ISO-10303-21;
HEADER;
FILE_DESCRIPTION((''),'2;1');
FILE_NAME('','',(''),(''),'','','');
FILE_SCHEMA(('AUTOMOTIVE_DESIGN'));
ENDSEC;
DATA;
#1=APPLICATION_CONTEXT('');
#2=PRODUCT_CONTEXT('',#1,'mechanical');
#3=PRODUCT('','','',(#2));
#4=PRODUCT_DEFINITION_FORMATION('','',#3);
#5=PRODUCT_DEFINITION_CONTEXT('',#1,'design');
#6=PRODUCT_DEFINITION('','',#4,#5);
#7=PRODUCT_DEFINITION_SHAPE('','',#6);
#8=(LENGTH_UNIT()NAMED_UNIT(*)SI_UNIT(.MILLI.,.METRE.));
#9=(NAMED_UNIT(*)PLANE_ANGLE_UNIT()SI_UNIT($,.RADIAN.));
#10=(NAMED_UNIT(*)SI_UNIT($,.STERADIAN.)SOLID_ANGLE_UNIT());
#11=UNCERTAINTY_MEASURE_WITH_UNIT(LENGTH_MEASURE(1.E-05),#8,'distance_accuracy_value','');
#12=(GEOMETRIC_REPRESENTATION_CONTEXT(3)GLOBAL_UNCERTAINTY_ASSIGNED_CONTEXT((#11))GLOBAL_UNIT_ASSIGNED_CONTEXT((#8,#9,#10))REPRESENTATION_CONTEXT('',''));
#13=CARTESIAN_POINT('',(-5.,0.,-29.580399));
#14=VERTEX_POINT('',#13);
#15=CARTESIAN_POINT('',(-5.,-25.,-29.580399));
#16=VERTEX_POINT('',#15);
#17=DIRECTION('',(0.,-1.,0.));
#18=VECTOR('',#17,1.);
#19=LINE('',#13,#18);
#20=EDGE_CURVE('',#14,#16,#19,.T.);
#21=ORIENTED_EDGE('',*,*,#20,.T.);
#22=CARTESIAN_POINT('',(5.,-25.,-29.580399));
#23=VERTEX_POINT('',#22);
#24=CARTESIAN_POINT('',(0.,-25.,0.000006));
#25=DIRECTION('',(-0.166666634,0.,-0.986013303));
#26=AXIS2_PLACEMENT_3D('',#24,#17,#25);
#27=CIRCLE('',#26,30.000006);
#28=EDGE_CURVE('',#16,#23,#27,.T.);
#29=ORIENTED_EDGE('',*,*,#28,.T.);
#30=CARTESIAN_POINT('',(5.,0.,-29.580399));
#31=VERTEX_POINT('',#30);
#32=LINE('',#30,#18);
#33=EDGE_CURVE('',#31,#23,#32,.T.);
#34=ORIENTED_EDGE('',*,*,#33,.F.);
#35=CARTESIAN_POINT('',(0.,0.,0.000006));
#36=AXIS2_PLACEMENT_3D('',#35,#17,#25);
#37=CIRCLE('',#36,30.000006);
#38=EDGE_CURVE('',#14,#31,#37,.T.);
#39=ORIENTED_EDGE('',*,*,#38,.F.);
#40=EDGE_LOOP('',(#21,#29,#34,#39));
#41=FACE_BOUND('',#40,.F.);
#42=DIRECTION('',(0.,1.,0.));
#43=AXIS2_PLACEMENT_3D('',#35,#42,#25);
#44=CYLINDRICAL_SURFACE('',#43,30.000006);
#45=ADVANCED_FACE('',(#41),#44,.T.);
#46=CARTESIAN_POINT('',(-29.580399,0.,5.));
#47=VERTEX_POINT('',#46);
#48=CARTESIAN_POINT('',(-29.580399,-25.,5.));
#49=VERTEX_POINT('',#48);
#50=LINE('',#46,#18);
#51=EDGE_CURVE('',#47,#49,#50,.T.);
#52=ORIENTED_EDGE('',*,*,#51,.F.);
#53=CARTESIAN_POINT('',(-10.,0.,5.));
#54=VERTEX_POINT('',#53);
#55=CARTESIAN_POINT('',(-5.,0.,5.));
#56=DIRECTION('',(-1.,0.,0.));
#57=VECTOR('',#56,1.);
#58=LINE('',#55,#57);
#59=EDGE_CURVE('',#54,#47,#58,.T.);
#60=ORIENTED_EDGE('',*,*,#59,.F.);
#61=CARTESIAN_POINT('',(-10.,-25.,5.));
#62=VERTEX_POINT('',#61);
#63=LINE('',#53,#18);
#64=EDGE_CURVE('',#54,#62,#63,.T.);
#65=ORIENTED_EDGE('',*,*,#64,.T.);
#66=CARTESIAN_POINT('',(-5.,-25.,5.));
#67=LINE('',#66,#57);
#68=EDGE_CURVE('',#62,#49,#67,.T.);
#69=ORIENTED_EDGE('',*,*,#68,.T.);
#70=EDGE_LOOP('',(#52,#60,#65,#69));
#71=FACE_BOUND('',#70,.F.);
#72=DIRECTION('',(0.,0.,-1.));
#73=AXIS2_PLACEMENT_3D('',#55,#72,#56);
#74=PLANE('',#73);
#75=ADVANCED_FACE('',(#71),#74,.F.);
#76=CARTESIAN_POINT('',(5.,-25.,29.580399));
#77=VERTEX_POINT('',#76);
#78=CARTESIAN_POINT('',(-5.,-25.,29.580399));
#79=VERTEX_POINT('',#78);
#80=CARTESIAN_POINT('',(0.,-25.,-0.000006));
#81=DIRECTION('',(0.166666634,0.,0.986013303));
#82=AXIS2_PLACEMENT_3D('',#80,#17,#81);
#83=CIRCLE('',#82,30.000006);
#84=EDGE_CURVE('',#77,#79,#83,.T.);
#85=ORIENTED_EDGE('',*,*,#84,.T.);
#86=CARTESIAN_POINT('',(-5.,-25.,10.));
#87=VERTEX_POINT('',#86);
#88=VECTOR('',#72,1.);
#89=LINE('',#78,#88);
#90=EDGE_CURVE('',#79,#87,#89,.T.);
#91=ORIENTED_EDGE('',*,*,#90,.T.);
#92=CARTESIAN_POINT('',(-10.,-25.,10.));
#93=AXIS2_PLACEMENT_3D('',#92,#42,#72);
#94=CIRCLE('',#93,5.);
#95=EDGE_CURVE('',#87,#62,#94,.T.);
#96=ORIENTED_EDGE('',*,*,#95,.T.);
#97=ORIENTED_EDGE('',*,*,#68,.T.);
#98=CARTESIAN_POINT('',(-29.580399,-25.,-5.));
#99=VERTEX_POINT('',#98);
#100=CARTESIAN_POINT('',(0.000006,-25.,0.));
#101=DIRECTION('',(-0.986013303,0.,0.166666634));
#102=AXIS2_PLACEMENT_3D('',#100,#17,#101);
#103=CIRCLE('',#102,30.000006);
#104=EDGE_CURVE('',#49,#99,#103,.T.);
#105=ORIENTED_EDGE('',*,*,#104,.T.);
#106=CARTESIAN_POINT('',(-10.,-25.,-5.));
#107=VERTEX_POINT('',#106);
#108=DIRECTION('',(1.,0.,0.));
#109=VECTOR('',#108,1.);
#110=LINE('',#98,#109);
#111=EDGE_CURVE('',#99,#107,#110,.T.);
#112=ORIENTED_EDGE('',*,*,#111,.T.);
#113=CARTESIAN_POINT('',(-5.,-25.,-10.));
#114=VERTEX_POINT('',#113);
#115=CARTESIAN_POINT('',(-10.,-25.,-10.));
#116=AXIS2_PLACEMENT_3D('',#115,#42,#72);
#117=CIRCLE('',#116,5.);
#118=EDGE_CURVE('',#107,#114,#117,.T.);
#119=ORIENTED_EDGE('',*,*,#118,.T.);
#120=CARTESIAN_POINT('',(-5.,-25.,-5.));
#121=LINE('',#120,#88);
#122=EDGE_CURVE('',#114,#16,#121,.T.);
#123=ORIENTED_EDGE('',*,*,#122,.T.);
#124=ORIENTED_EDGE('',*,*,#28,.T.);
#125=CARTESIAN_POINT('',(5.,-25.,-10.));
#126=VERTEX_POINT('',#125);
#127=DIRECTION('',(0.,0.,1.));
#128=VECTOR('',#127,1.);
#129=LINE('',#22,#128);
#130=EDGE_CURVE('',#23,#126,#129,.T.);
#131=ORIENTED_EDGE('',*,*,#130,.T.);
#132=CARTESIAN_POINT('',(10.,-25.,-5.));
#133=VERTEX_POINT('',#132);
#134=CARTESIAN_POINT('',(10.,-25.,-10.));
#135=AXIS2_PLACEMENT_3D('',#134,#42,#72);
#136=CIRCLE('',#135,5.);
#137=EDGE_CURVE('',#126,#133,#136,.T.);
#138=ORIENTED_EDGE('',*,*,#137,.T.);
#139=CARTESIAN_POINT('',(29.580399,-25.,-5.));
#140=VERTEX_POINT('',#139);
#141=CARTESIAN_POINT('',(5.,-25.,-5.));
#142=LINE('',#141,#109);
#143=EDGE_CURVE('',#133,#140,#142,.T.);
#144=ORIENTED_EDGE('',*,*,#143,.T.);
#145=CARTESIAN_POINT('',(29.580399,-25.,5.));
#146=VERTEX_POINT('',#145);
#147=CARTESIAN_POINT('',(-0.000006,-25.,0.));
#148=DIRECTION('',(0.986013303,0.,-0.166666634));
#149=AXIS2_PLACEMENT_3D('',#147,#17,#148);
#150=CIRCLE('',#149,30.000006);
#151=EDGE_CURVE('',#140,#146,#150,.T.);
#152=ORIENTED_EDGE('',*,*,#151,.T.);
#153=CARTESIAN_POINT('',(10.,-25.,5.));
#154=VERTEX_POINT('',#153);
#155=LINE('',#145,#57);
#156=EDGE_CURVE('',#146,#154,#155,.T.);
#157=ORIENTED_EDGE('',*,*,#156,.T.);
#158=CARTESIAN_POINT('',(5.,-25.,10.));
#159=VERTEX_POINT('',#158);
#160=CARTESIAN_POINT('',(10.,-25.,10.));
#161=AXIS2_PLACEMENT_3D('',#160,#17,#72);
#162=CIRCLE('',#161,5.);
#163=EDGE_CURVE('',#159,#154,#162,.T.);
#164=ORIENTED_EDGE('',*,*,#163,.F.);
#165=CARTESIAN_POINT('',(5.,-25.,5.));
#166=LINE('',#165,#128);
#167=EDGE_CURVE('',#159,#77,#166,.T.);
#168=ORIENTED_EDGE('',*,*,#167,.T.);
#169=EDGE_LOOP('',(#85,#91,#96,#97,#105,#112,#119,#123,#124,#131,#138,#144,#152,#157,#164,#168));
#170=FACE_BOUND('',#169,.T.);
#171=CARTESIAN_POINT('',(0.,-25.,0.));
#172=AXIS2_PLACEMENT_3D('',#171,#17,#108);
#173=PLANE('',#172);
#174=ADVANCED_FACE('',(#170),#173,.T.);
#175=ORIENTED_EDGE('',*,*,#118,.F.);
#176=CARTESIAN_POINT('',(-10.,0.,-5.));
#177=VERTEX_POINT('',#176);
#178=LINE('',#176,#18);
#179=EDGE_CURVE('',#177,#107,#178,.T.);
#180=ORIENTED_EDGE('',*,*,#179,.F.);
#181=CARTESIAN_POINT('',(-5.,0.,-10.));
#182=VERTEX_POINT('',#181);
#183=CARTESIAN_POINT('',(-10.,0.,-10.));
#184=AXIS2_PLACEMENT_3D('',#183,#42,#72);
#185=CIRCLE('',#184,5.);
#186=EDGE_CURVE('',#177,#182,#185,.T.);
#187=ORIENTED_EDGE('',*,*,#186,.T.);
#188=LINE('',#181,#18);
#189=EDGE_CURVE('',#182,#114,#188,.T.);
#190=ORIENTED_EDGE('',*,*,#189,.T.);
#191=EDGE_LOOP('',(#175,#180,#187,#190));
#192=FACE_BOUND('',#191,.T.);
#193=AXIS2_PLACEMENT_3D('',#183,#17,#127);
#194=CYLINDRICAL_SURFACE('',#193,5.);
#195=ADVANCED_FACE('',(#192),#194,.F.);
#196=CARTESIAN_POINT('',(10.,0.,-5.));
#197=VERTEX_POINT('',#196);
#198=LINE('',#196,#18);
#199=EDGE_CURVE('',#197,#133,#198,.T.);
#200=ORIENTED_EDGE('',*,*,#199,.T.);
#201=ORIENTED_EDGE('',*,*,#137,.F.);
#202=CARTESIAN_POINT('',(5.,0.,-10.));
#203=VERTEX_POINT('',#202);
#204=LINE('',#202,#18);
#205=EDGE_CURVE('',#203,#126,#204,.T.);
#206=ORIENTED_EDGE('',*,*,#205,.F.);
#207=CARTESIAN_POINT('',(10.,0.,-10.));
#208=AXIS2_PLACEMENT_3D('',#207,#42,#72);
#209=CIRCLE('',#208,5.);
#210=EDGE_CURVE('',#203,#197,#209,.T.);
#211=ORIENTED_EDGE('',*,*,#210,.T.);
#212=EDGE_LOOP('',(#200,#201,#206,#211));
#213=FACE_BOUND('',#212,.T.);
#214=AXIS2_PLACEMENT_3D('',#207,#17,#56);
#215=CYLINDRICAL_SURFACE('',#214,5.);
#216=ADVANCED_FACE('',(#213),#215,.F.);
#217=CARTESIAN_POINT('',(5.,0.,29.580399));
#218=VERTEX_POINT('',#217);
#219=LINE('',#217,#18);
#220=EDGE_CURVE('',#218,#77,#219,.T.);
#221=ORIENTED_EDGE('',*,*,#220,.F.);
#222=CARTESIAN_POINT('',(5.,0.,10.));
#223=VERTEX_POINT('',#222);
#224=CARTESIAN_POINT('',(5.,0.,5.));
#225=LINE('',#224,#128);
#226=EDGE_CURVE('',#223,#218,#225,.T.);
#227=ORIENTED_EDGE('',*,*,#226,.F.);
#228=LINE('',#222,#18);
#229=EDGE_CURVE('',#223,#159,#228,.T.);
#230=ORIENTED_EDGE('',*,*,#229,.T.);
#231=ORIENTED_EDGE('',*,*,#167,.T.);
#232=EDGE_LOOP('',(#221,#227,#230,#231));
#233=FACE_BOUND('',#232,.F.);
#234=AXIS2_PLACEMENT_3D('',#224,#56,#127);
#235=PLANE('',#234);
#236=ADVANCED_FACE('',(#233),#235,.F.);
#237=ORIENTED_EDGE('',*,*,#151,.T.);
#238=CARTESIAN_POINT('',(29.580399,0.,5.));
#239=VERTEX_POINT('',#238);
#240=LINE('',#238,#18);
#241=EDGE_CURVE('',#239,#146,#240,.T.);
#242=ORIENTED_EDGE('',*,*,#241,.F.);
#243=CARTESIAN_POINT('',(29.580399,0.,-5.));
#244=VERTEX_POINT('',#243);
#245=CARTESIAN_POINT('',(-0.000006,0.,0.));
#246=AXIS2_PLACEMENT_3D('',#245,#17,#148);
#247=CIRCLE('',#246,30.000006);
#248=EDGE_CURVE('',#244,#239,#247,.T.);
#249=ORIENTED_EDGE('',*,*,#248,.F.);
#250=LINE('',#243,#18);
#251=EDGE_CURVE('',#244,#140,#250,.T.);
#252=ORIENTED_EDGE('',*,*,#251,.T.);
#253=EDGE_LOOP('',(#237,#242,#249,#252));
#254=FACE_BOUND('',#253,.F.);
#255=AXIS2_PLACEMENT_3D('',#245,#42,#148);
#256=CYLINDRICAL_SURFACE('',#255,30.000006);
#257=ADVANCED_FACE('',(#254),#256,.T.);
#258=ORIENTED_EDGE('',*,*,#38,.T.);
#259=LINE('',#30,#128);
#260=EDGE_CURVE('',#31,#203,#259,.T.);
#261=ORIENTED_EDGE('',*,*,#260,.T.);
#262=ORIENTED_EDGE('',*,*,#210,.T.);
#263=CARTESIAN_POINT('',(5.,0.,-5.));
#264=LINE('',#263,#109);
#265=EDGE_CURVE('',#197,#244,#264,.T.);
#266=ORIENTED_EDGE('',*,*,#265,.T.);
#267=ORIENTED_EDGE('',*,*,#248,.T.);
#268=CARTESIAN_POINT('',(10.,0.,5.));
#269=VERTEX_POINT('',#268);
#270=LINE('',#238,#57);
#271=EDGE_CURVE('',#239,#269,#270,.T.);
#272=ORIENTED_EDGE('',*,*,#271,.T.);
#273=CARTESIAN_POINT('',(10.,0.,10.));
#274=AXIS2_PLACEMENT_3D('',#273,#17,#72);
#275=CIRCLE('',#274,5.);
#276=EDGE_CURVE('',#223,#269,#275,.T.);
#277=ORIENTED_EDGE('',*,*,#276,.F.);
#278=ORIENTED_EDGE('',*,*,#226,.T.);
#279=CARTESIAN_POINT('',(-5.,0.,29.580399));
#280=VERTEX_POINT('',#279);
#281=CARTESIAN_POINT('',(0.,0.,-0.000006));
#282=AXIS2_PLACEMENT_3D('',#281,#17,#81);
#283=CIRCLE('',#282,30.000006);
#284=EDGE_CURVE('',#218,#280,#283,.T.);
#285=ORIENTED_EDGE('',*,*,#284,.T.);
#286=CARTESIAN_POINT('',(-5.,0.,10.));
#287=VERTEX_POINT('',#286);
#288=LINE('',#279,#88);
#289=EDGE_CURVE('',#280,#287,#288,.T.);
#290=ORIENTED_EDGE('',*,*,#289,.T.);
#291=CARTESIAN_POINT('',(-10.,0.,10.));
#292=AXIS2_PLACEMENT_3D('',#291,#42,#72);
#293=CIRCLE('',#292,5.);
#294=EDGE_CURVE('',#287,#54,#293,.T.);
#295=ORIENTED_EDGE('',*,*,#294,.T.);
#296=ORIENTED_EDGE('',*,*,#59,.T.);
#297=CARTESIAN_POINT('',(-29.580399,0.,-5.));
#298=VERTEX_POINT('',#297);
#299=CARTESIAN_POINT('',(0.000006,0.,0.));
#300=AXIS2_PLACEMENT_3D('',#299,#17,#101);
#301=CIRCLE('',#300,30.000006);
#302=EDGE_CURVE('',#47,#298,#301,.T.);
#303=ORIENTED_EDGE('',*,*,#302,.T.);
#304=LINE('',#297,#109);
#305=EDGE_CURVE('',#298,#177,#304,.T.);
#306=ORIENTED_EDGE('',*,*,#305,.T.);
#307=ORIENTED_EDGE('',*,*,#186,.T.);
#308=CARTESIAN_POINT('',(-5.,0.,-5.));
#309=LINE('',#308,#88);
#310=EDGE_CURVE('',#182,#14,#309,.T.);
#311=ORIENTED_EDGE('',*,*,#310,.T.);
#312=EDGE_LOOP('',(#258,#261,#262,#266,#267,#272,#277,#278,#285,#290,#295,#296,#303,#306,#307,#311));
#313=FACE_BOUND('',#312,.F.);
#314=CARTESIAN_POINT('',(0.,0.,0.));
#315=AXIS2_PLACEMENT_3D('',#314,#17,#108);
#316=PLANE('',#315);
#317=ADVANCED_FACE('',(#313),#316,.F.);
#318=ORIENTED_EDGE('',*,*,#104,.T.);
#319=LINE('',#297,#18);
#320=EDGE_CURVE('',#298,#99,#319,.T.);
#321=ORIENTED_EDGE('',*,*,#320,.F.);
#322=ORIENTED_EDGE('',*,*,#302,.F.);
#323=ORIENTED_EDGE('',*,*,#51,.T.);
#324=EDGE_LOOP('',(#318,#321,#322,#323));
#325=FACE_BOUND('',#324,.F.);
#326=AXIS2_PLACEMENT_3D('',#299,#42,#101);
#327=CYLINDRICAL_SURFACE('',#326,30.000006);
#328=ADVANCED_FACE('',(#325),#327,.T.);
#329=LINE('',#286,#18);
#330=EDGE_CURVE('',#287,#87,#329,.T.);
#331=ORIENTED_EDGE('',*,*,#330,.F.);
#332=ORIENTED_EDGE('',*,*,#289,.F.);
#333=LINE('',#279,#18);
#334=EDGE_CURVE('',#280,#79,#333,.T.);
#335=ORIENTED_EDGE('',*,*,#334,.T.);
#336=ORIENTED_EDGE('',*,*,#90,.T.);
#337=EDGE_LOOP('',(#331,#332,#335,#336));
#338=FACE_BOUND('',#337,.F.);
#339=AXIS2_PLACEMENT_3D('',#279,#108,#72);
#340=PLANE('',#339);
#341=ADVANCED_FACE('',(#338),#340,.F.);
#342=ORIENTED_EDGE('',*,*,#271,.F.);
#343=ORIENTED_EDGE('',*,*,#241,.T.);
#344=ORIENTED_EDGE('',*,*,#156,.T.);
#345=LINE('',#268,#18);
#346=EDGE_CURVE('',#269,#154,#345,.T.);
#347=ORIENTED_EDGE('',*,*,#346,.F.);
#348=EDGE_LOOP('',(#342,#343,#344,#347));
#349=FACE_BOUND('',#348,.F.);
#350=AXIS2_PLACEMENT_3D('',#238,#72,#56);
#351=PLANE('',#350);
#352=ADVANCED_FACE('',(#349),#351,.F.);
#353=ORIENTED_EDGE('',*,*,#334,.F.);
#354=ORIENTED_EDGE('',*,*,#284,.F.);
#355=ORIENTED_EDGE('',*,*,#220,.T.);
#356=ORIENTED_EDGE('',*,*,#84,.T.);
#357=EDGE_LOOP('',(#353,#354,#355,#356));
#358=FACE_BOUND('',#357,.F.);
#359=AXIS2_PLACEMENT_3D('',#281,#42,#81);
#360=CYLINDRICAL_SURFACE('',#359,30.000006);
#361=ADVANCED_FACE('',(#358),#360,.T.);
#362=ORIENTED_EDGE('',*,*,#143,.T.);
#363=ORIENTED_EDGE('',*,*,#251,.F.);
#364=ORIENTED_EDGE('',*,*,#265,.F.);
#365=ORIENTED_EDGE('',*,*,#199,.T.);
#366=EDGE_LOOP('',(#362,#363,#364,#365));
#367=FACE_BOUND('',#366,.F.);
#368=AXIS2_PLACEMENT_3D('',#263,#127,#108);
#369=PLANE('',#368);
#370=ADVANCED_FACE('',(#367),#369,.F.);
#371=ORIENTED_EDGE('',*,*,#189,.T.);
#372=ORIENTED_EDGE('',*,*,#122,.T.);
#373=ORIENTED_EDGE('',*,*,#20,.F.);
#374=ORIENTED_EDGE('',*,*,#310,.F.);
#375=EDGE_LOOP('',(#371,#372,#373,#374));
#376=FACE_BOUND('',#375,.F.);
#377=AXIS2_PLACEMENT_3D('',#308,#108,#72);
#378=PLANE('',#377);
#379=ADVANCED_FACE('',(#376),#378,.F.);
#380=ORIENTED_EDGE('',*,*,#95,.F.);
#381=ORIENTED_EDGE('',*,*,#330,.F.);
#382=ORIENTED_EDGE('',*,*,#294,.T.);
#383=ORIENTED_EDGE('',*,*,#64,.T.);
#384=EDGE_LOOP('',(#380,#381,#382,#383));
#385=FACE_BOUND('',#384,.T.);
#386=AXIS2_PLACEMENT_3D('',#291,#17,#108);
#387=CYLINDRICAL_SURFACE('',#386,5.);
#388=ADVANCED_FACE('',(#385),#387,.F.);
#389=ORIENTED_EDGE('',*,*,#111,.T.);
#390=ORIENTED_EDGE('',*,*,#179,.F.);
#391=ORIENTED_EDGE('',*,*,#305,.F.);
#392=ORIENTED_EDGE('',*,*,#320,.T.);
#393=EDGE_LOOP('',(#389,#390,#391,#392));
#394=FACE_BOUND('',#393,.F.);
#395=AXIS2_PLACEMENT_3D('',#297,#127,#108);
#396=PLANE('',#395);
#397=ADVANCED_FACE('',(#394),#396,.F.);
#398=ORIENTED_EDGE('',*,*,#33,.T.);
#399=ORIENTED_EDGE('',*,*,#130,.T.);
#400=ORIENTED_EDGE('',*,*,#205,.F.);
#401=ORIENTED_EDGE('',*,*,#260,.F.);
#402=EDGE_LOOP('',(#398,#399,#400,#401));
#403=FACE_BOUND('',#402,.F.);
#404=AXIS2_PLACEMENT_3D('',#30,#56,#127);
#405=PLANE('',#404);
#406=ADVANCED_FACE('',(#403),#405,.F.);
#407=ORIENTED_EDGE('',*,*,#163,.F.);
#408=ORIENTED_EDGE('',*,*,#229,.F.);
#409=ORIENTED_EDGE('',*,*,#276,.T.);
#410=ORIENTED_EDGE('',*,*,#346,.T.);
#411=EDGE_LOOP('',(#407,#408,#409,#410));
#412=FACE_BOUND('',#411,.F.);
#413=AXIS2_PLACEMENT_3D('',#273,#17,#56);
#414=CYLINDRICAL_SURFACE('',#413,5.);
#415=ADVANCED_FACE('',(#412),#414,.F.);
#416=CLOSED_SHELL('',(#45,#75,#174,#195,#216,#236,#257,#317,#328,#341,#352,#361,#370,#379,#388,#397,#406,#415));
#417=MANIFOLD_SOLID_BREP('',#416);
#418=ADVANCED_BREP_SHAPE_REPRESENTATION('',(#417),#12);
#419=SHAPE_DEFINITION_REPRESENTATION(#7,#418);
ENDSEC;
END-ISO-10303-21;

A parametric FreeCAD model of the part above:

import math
import FreeCAD as App
import Part
import Sketcher

V = App.Vector


def edges_at(feature, points):
    """Names of the edges that pass closest to the given points."""
    edges = feature.Shape.Edges
    near = lambda p: min(range(len(edges)), key=lambda i: edges[i].distToShape(Part.Vertex(*p))[0])
    return sorted({f"Edge{near(p) + 1}" for p in points})

doc = App.newDocument("Part")
params = doc.addObject("Spreadsheet::Sheet", "Params")
for row, (alias, value) in enumerate([
    ("pad1_length", "25 mm"),
    ("fillet_radius", "5 mm"),
], start=1):
    params.set(f"A{row}", alias)
    params.set(f"B{row}", "=" + value)
    params.setAlias(f"B{row}", alias)

body = doc.addObject("PartDesign::Body", "Body")

# Sketch on XZ plane
sketch1 = body.newObject("Sketcher::SketchObject", "Sketch")
sketch1.AttachmentSupport = (doc.getObject("XZ_Plane"), [""])
sketch1.MapMode = "FlatFace"
sketch1.addGeometry(Part.LineSegment(V(5, 5, 0), V(5, 29.580399, 0)), False)
sketch1.addGeometry(Part.ArcOfCircle(Part.Circle(V(0, -0.000006, 0), V(0, 0, 1), 30.000006), math.radians(80.405934), math.radians(99.594066)), False)
sketch1.addGeometry(Part.LineSegment(V(-5, 29.580399, 0), V(-5, 5, 0)), False)
sketch1.addGeometry(Part.LineSegment(V(-5, 5, 0), V(-29.580399, 5, 0)), False)
sketch1.addGeometry(Part.ArcOfCircle(Part.Circle(V(0.000006, 0, 0), V(0, 0, 1), 30.000006), math.radians(170.405934), math.radians(189.594066)), False)
sketch1.addGeometry(Part.LineSegment(V(-29.580399, -5, 0), V(-5, -5, 0)), False)
sketch1.addGeometry(Part.LineSegment(V(-5, -5, 0), V(-5, -29.580399, 0)), False)
sketch1.addGeometry(Part.ArcOfCircle(Part.Circle(V(0, 0.000006, 0), V(0, 0, 1), 30.000006), math.radians(-99.594066), math.radians(-80.405934)), False)
sketch1.addGeometry(Part.LineSegment(V(5, -29.580399, 0), V(5, -5, 0)), False)
sketch1.addGeometry(Part.LineSegment(V(5, -5, 0), V(29.580399, -5, 0)), False)
sketch1.addGeometry(Part.ArcOfCircle(Part.Circle(V(-0.000006, 0, 0), V(0, 0, 1), 30.000006), math.radians(-9.594066), math.radians(9.594066)), False)
sketch1.addGeometry(Part.LineSegment(V(29.580399, 5, 0), V(5, 5, 0)), False)
sketch1.addConstraint(Sketcher.Constraint("Coincident", 0, 2, 1, 1))
sketch1.addConstraint(Sketcher.Constraint("Coincident", 1, 2, 2, 1))
sketch1.addConstraint(Sketcher.Constraint("Coincident", 2, 2, 3, 1))
sketch1.addConstraint(Sketcher.Constraint("Coincident", 3, 2, 4, 1))
sketch1.addConstraint(Sketcher.Constraint("Coincident", 4, 2, 5, 1))
sketch1.addConstraint(Sketcher.Constraint("Coincident", 5, 2, 6, 1))
sketch1.addConstraint(Sketcher.Constraint("Coincident", 6, 2, 7, 1))
sketch1.addConstraint(Sketcher.Constraint("Coincident", 7, 2, 8, 1))
sketch1.addConstraint(Sketcher.Constraint("Coincident", 8, 2, 9, 1))
sketch1.addConstraint(Sketcher.Constraint("Coincident", 9, 2, 10, 1))
sketch1.addConstraint(Sketcher.Constraint("Coincident", 10, 2, 11, 1))
sketch1.addConstraint(Sketcher.Constraint("Coincident", 11, 2, 0, 1))
sketch1.addConstraint(Sketcher.Constraint("Vertical", 0))
sketch1.addConstraint(Sketcher.Constraint("Vertical", 2))
sketch1.addConstraint(Sketcher.Constraint("Horizontal", 3))
sketch1.addConstraint(Sketcher.Constraint("Horizontal", 5))
sketch1.addConstraint(Sketcher.Constraint("Vertical", 6))
sketch1.addConstraint(Sketcher.Constraint("Vertical", 8))
sketch1.addConstraint(Sketcher.Constraint("Horizontal", 9))
sketch1.addConstraint(Sketcher.Constraint("Horizontal", 11))
sketch1.addConstraint(Sketcher.Constraint("Coincident", 1, 3, -1, 1))
sketch1.addConstraint(Sketcher.Constraint("Coincident", 4, 3, -1, 1))
sketch1.addConstraint(Sketcher.Constraint("Coincident", 7, 3, -1, 1))
sketch1.addConstraint(Sketcher.Constraint("Coincident", 10, 3, -1, 1))
sketch1.addConstraint(Sketcher.Constraint("Equal", 1, 4))
sketch1.addConstraint(Sketcher.Constraint("Equal", 4, 7))
sketch1.addConstraint(Sketcher.Constraint("Equal", 7, 10))
sketch1.addConstraint(Sketcher.Constraint("Symmetric", 2, 2, 8, 2, -1, 1))
sketch1.addConstraint(Sketcher.Constraint("Symmetric", 5, 2, 11, 2, -1, 1))
sketch1.addConstraint(Sketcher.Constraint("Symmetric", 5, 2, 8, 2, -2))
sketch1.addConstraint(Sketcher.Constraint("Equal", 11, 0))
sketch1.addConstraint(Sketcher.Constraint("DistanceX", -1, 1, 0, 2, 5.0))
sketch1.addConstraint(Sketcher.Constraint("DistanceX", 3, 2, 3, 1, 24.580399))
pad1 = body.newObject("PartDesign::Pad", "Pad")
pad1.Profile = sketch1
pad1.setExpression("Length", "Params.pad1_length")
doc.recompute()

fillet = body.newObject("PartDesign::Fillet", "Fillet")
fillet.Base = (pad1, edges_at(pad1, [
    (-5, -12.5, 5),
    (5, -12.5, 5),
    (-5, -12.5, -5),
    (5, -12.5, -5),
]))
fillet.setExpression("Radius", "Params.fillet_radius")

doc.recompute()
